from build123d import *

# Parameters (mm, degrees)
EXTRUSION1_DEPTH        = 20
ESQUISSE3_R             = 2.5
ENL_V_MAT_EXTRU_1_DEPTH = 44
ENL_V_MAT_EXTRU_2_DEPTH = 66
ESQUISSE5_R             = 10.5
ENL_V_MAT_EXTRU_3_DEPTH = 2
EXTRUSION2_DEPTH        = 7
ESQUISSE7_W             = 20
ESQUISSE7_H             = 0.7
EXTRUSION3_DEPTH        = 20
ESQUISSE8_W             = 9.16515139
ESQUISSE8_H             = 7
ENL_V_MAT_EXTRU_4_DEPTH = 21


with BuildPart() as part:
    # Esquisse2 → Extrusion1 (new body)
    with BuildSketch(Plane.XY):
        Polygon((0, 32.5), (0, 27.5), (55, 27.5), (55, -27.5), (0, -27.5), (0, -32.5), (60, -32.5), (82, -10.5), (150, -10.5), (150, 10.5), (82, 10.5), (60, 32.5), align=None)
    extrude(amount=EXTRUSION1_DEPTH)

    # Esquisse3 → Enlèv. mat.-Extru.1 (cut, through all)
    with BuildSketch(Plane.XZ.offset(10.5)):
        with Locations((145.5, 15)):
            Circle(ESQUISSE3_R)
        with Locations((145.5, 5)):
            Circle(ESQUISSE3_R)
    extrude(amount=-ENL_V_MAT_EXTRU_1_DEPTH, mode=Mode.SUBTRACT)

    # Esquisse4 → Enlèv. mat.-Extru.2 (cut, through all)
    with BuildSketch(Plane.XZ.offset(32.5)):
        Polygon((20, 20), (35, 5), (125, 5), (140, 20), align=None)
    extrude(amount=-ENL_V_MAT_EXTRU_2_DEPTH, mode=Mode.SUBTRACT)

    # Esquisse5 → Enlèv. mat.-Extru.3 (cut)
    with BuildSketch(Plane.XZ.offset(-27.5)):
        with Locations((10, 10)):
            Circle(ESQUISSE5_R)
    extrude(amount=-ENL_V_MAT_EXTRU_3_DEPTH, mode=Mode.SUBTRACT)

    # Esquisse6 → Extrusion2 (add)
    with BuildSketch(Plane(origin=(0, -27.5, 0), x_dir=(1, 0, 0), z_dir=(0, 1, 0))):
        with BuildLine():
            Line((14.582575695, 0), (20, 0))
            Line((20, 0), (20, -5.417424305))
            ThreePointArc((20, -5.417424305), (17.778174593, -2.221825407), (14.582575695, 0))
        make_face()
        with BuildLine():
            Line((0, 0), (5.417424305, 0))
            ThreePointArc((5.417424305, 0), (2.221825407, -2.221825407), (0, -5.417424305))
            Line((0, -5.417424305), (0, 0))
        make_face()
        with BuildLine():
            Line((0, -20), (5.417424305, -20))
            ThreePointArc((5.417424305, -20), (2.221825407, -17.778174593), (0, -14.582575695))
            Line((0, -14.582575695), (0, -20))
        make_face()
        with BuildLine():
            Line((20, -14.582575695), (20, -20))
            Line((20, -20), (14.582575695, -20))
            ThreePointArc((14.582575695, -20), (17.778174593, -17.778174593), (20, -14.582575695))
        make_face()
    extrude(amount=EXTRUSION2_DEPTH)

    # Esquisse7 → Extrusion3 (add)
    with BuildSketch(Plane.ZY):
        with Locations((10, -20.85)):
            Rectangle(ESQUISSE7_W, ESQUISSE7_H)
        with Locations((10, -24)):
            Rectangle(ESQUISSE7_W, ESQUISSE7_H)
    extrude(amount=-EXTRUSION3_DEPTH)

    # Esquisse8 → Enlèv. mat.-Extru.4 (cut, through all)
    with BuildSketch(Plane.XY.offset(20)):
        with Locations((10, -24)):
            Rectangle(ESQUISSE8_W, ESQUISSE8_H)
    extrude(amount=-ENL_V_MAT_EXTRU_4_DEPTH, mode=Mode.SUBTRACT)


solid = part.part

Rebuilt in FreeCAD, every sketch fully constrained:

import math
import FreeCAD as App
import Part
import Sketcher
from FreeCAD import Vector


def add_polygon(sketch, points):
    """Adds a closed chain of lines whose ends are joined by coincident constraints."""
    first, n = sketch.GeometryCount, len(points)
    for a, b in zip(points, points[1:] + points[:1]):
        sketch.addGeometry(Part.LineSegment(App.Vector(*a, 0), App.Vector(*b, 0)), False)
    for i in range(n):
        sketch.addConstraint(Sketcher.Constraint("Coincident", first + i, 2, first + (i + 1) % n, 1))

doc = App.newDocument("Part")
params = doc.addObject("Spreadsheet::Sheet", "Params")
for row, (alias, value) in enumerate([
    ("sketch1_width", "55 mm"),
    ("sketch1_width2", "60 mm"),
    ("sketch1_width3", "68 mm"),
    ("sketch1_height", "5 mm"),
    ("sketch1_height2", "21 mm"),
    ("pad1_length", "20 mm"),
    ("sketch2_diameter", "5 mm"),
    ("sketch3_width", "90 mm"),
    ("sketch3_width2", "120 mm"),
    ("sketch4_diameter", "21 mm"),
    ("pocket3_length", "2 mm"),
    ("sketch5_radius", "11 mm"),
    ("pad2_length", "7 mm"),
    ("sketch6_height", "20 mm"),
    ("sketch6_width", "0.7 mm"),
    ("pad3_length", "20 mm"),
    ("sketch7_height", "7 mm"),
], start=1):
    params.set(f"A{row}", alias)
    params.set(f"B{row}", "=" + value)
    params.setAlias(f"B{row}", alias)

body = doc.addObject("PartDesign::Body", "Body")

# Sketch on XY plane
sketch1 = body.newObject("Sketcher::SketchObject", "Sketch")
sketch1.AttachmentSupport = (doc.getObject("XY_Plane"), [""])
sketch1.MapMode = "FlatFace"
add_polygon(sketch1, [(0, 32.5), (0, 27.5), (55, 27.5), (55, -27.5), (0, -27.5), (0, -32.5), (60, -32.5), (82, -10.5), (150, -10.5), (150, 10.5), (82, 10.5), (60, 32.5)])  # lines 0-11
sketch1.addConstraint(Sketcher.Constraint("Vertical", 0))
sketch1.addConstraint(Sketcher.Constraint("Horizontal", 1))
sketch1.addConstraint(Sketcher.Constraint("Vertical", 2))
sketch1.addConstraint(Sketcher.Constraint("Horizontal", 3))
sketch1.addConstraint(Sketcher.Constraint("Vertical", 4))
sketch1.addConstraint(Sketcher.Constraint("Horizontal", 5))
sketch1.addConstraint(Sketcher.Constraint("Horizontal", 7))
sketch1.addConstraint(Sketcher.Constraint("Vertical", 8))
sketch1.addConstraint(Sketcher.Constraint("Horizontal", 9))
sketch1.addConstraint(Sketcher.Constraint("Horizontal", 11))
sketch1.addConstraint(Sketcher.Constraint("Symmetric", 0, 2, 3, 2, -1, 1))
sketch1.addConstraint(Sketcher.Constraint("Symmetric", 6, 2, 9, 2, -1))
sketch1.addConstraint(Sketcher.Constraint("Symmetric", 5, 2, 10, 2, -1))
sketch1.addConstraint(Sketcher.Constraint("PointOnObject", 0, 2, -2))
sketch1.addConstraint(Sketcher.Constraint("Perpendicular", 6, 10))
sketch1.addConstraint(Sketcher.Constraint("Equal", 3, 2))
sketch1.addConstraint(Sketcher.Constraint("DistanceX", 1, 1, 1, 2, 55.0))
sketch1.addConstraint(Sketcher.Constraint("DistanceX", 5, 1, 5, 2, 60.0))
sketch1.addConstraint(Sketcher.Constraint("DistanceX", 7, 1, 7, 2, 68.0))
sketch1.addConstraint(Sketcher.Constraint("DistanceY", 0, 2, 0, 1, 5.0))
sketch1.addConstraint(Sketcher.Constraint("DistanceY", 8, 1, 8, 2, 21.0))
sketch1.setExpression("Constraints[28]", "Params.sketch1_width")
sketch1.setExpression("Constraints[29]", "Params.sketch1_width2")
sketch1.setExpression("Constraints[30]", "Params.sketch1_width3")
sketch1.setExpression("Constraints[31]", "Params.sketch1_height")
sketch1.setExpression("Constraints[32]", "Params.sketch1_height2")
pad1 = body.newObject("PartDesign::Pad", "Pad")
pad1.Profile = sketch1
pad1.setExpression("Length", "Params.pad1_length")

# Sketch on XZ plane
sketch2 = body.newObject("Sketcher::SketchObject", "Sketch001")
sketch2.AttachmentSupport = (doc.getObject("XZ_Plane"), [""])
sketch2.MapMode = "FlatFace"
sketch2.AttachmentOffset = App.Placement(Vector(0, 0, 10.5), App.Rotation())
sketch2.addGeometry(Part.Circle(Vector(145.5, 15, 0), Vector(0, 0, 1), 2.5), False)
sketch2.addGeometry(Part.Circle(Vector(145.5, 5, 0), Vector(0, 0, 1), 2.5), False)
sketch2.addConstraint(Sketcher.Constraint("Equal", 0, 1))
sketch2.addConstraint(Sketcher.Constraint("Vertical", 0, 3, 1, 3))
sketch2.addConstraint(Sketcher.Constraint("Diameter", 0, 5.0))
sketch2.addConstraint(Sketcher.Constraint("DistanceY", -1, 1, 0, 3, 15.0))
sketch2.addConstraint(Sketcher.Constraint("DistanceY", -1, 1, 1, 3, 5.0))
sketch2.addConstraint(Sketcher.Constraint("DistanceX", -1, 1, 0, 3, 145.5))
sketch2.setExpression("Constraints[2]", "Params.sketch2_diameter")
pocket1 = body.newObject("PartDesign::Pocket", "Pocket")
pocket1.Profile = sketch2
pocket1.Type = "ThroughAll"

# Sketch on XZ plane
sketch3 = body.newObject("Sketcher::SketchObject", "Sketch002")
sketch3.AttachmentSupport = (doc.getObject("XZ_Plane"), [""])
sketch3.MapMode = "FlatFace"
sketch3.AttachmentOffset = App.Placement(Vector(0, 0, 32.5), App.Rotation())
add_polygon(sketch3, [(20, 20), (35, 5), (125, 5), (140, 20)])  # lines 0-3
sketch3.addConstraint(Sketcher.Constraint("Horizontal", 1))
sketch3.addConstraint(Sketcher.Constraint("Horizontal", 3))
sketch3.addConstraint(Sketcher.Constraint("Perpendicular", 0, 2))
sketch3.addConstraint(Sketcher.Constraint("Equal", 0, 2))
sketch3.addConstraint(Sketcher.Constraint("DistanceX", 1, 1, 1, 2, 90.0))
sketch3.addConstraint(Sketcher.Constraint("DistanceX", 3, 2, 3, 1, 120.0))
sketch3.addConstraint(Sketcher.Constraint("DistanceX", -1, 1, 0, 2, 35.0))
sketch3.addConstraint(Sketcher.Constraint("DistanceY", -1, 1, 0, 2, 5.0))
sketch3.setExpression("Constraints[8]", "Params.sketch3_width")
sketch3.setExpression("Constraints[9]", "Params.sketch3_width2")
pocket2 = body.newObject("PartDesign::Pocket", "Pocket001")
pocket2.Profile = sketch3
pocket2.Type = "ThroughAll"

# Sketch on XZ plane
sketch4 = body.newObject("Sketcher::SketchObject", "Sketch003")
sketch4.AttachmentSupport = (doc.getObject("XZ_Plane"), [""])
sketch4.MapMode = "FlatFace"
sketch4.AttachmentOffset = App.Placement(Vector(0, 0, -27.5), App.Rotation())
sketch4.addGeometry(Part.Circle(Vector(10, 10, 0), Vector(0, 0, 1), 10.5), False)
sketch4.addConstraint(Sketcher.Constraint("Diameter", 0, 21.0))
sketch4.addConstraint(Sketcher.Constraint("DistanceX", -1, 1, 0, 3, 10.0))
sketch4.addConstraint(Sketcher.Constraint("DistanceY", -1, 1, 0, 3, 10.0))
sketch4.setExpression("Constraints[0]", "Params.sketch4_diameter")
pocket3 = body.newObject("PartDesign::Pocket", "Pocket002")
pocket3.Profile = sketch4
pocket3.setExpression("Length", "Params.pocket3_length")

# Sketch on XZ plane
sketch5 = body.newObject("Sketcher::SketchObject", "Sketch004")
sketch5.AttachmentSupport = (doc.getObject("XZ_Plane"), [""])
sketch5.MapMode = "FlatFace"
sketch5.AttachmentOffset = App.Placement(Vector(0, 0, 27.5), App.Rotation())
sketch5.addGeometry(Part.LineSegment(Vector(20, 0, 0), Vector(14.582576, 0, 0)), False)
sketch5.addGeometry(Part.ArcOfCircle(Part.Circle(Vector(10, 10, 0), Vector(0, 0, 1), 11), math.radians(-65.380023), math.radians(-24.619977)), False)
sketch5.addGeometry(Part.LineSegment(Vector(20, 5.417424, 0), Vector(20, 0, 0)), False)
sketch5.addGeometry(Part.LineSegment(Vector(5.417424, 0, 0), Vector(0, 0, 0)), False)
sketch5.addGeometry(Part.LineSegment(Vector(0, 0, 0), Vector(0, 5.417424, 0)), False)
sketch5.addGeometry(Part.ArcOfCircle(Part.Circle(Vector(10, 10, 0), Vector(0, 0, 1), 11), math.radians(-155.380023), math.radians(-114.619977)), False)
sketch5.addGeometry(Part.LineSegment(Vector(0, 20, 0), Vector(5.417424, 20, 0)), False)
sketch5.addGeometry(Part.ArcOfCircle(Part.Circle(Vector(10, 10, 0), Vector(0, 0, 1), 11), math.radians(114.619977), math.radians(155.380023)), False)
sketch5.addGeometry(Part.LineSegment(Vector(0, 14.582576, 0), Vector(0, 20, 0)), False)
sketch5.addGeometry(Part.LineSegment(Vector(20, 20, 0), Vector(20, 14.582576, 0)), False)
sketch5.addGeometry(Part.ArcOfCircle(Part.Circle(Vector(10, 10, 0), Vector(0, 0, 1), 11), math.radians(24.619977), math.radians(65.380023)), False)
sketch5.addGeometry(Part.LineSegment(Vector(14.582576, 20, 0), Vector(20, 20, 0)), False)
sketch5.addConstraint(Sketcher.Constraint("Coincident", 0, 2, 1, 1))
sketch5.addConstraint(Sketcher.Constraint("Coincident", 1, 2, 2, 1))
sketch5.addConstraint(Sketcher.Constraint("Coincident", 2, 2, 0, 1))
sketch5.addConstraint(Sketcher.Constraint("Coincident", 3, 2, 4, 1))
sketch5.addConstraint(Sketcher.Constraint("Coincident", 4, 2, 5, 1))
sketch5.addConstraint(Sketcher.Constraint("Coincident", 5, 2, 3, 1))
sketch5.addConstraint(Sketcher.Constraint("Coincident", 6, 2, 7, 1))
sketch5.addConstraint(Sketcher.Constraint("Coincident", 7, 2, 8, 1))
sketch5.addConstraint(Sketcher.Constraint("Coincident", 8, 2, 6, 1))
sketch5.addConstraint(Sketcher.Constraint("Coincident", 9, 2, 10, 1))
sketch5.addConstraint(Sketcher.Constraint("Coincident", 10, 2, 11, 1))
sketch5.addConstraint(Sketcher.Constraint("Coincident", 11, 2, 9, 1))
sketch5.addConstraint(Sketcher.Constraint("Horizontal", 0))
sketch5.addConstraint(Sketcher.Constraint("Vertical", 2))
sketch5.addConstraint(Sketcher.Constraint("Horizontal", 3))
sketch5.addConstraint(Sketcher.Constraint("Vertical", 4))
sketch5.addConstraint(Sketcher.Constraint("Horizontal", 6))
sketch5.addConstraint(Sketcher.Constraint("Vertical", 8))
sketch5.addConstraint(Sketcher.Constraint("Vertical", 9))
sketch5.addConstraint(Sketcher.Constraint("Horizontal", 11))
sketch5.addConstraint(Sketcher.Constraint("Coincident", 3, 2, -1, 1))
sketch5.addConstraint(Sketcher.Constraint("Coincident", 5, 3, 1, 3))
sketch5.addConstraint(Sketcher.Constraint("Coincident", 7, 3, 1, 3))
sketch5.addConstraint(Sketcher.Constraint("Coincident", 10, 3, 1, 3))
sketch5.addConstraint(Sketcher.Constraint("Equal", 1, 5))
sketch5.addConstraint(Sketcher.Constraint("Equal", 5, 7))
sketch5.addConstraint(Sketcher.Constraint("Equal", 7, 10))
sketch5.addConstraint(Sketcher.Constraint("PointOnObject", 0, 2, -1))
sketch5.addConstraint(Sketcher.Constraint("PointOnObject", 7, 2, -2))
sketch5.addConstraint(Sketcher.Constraint("Horizontal", 1, 2, 4, 2))
sketch5.addConstraint(Sketcher.Constraint("Horizontal", 7, 2, 9, 2))
sketch5.addConstraint(Sketcher.Constraint("Horizontal", 8, 2, 10, 2))
sketch5.addConstraint(Sketcher.Constraint("Vertical", 5, 2, 6, 2))
sketch5.addConstraint(Sketcher.Constraint("Equal", 11, 2))
sketch5.addConstraint(Sketcher.Constraint("Radius", 1, 11.0))
sketch5.addConstraint(Sketcher.Constraint("DistanceX", -1, 1, 1, 3, 10.0))
sketch5.setExpression("Constraints[34]", "Params.sketch5_radius")
pad2 = body.newObject("PartDesign::Pad", "Pad001")
pad2.Profile = sketch5
pad2.setExpression("Length", "Params.pad2_length")
pad2.Reversed = True

# Sketch on YZ plane
sketch6 = body.newObject("Sketcher::SketchObject", "Sketch005")
sketch6.AttachmentSupport = (doc.getObject("YZ_Plane"), [""])
sketch6.MapMode = "FlatFace"
add_polygon(sketch6, [(-20.5, 0), (-21.2, 0), (-21.2, 20), (-20.5, 20)])  # lines 0-3
add_polygon(sketch6, [(-23.65, 0), (-24.35, 0), (-24.35, 20), (-23.65, 20)])  # lines 4-7
sketch6.addConstraint(Sketcher.Constraint("Horizontal", 0))
sketch6.addConstraint(Sketcher.Constraint("Vertical", 1))
sketch6.addConstraint(Sketcher.Constraint("Horizontal", 2))
sketch6.addConstraint(Sketcher.Constraint("Vertical", 3))
sketch6.addConstraint(Sketcher.Constraint("Horizontal", 4))
sketch6.addConstraint(Sketcher.Constraint("Vertical", 5))
sketch6.addConstraint(Sketcher.Constraint("Horizontal", 6))
sketch6.addConstraint(Sketcher.Constraint("Vertical", 7))
sketch6.addConstraint(Sketcher.Constraint("PointOnObject", 0, 2, -1))
sketch6.addConstraint(Sketcher.Constraint("PointOnObject", 4, 2, -1))
sketch6.addConstraint(Sketcher.Constraint("Horizontal", 2, 2, 5, 2))
sketch6.addConstraint(Sketcher.Constraint("Equal", 2, 4))
sketch6.addConstraint(Sketcher.Constraint("DistanceY", 1, 1, 1, 2, 20.0))
sketch6.addConstraint(Sketcher.Constraint("DistanceX", 0, 2, 0, 1, 0.7))
sketch6.addConstraint(Sketcher.Constraint("DistanceX", 0, 2, -1, 1, 21.2))
sketch6.addConstraint(Sketcher.Constraint("DistanceX", 4, 2, -1, 1, 24.35))
sketch6.setExpression("Constraints[20]", "Params.sketch6_height")
sketch6.setExpression("Constraints[21]", "Params.sketch6_width")
pad3 = body.newObject("PartDesign::Pad", "Pad002")
pad3.Profile = sketch6
pad3.setExpression("Length", "Params.pad3_length")

# Sketch on XY plane
sketch7 = body.newObject("Sketcher::SketchObject", "Sketch006")
sketch7.AttachmentSupport = (doc.getObject("XY_Plane"), [""])
sketch7.MapMode = "FlatFace"
sketch7.AttachmentOffset = App.Placement(Vector(0, 0, 20), App.Rotation())
add_polygon(sketch7, [(5.417424, -20.5), (5.417424, -27.5), (14.582576, -27.5), (14.582576, -20.5)])  # lines 0-3
sketch7.addConstraint(Sketcher.Constraint("Vertical", 0))
sketch7.addConstraint(Sketcher.Constraint("Horizontal", 1))
sketch7.addConstraint(Sketcher.Constraint("Vertical", 2))
sketch7.addConstraint(Sketcher.Constraint("Horizontal", 3))
sketch7.addConstraint(Sketcher.Constraint("DistanceY", 0, 2, 0, 1, 7.0))
sketch7.addConstraint(Sketcher.Constraint("DistanceY", 0, 2, -1, 1, 27.5))
sketch7.addConstraint(Sketcher.Constraint("DistanceX", 1, 1, 1, 2, 9.165151))
sketch7.addConstraint(Sketcher.Constraint("DistanceX", -1, 1, 0, 2, 5.417424))
sketch7.setExpression("Constraints[8]", "Params.sketch7_height")
pocket4 = body.newObject("PartDesign::Pocket", "Pocket003")
pocket4.Profile = sketch7
pocket4.Type = "ThroughAll"

doc.recompute()
